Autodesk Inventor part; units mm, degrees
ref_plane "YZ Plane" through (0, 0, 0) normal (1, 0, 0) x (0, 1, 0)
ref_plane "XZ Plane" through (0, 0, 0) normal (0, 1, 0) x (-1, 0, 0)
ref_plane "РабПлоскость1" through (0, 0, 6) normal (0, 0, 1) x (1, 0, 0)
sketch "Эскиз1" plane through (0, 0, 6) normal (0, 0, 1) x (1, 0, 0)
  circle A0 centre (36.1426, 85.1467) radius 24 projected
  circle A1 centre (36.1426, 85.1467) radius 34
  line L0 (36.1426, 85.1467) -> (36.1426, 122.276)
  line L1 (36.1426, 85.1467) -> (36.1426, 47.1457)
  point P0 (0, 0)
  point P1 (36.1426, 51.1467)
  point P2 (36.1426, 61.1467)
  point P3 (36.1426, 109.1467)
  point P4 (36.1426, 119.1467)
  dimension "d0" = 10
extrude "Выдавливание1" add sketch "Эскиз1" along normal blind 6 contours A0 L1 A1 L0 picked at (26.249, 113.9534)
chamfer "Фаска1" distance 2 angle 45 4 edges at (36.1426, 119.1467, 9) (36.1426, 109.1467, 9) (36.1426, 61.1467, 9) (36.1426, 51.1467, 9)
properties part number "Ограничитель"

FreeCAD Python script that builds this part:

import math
import FreeCAD as App
import Part
import Sketcher

V = App.Vector
Q = App.Units.Quantity


def edges_at(feature, points):
    """Names of the edges that pass closest to the given points."""
    edges = feature.Shape.Edges
    near = lambda p: min(range(len(edges)), key=lambda i: edges[i].distToShape(Part.Vertex(*p))[0])
    return sorted({f"Edge{near(p) + 1}" for p in points})

doc = App.newDocument("Part")
body = doc.addObject("PartDesign::Body", "Body")

sketch1 = body.newObject("Sketcher::SketchObject", "Sketch")
sketch1.AttachmentSupport = (doc.getObject("XY_Plane"), [""])
sketch1.MapMode = "FlatFace"
sketch1.AttachmentOffset = App.Placement(V(0, 0, 6), App.Rotation())
sketch1.addGeometry([
    Part.ArcOfCircle(Part.Circle(V(36.1426, 85.1467, 0), V(0, 0, 1), 24), math.radians(90), math.radians(270)),
    Part.LineSegment(V(36.1426, 109.1467, 0), V(36.1426, 119.1467, 0)),
    Part.ArcOfCircle(Part.Circle(V(36.1426, 85.1467, 0), V(0, 0, 1), 34), math.radians(90), math.radians(270)),
    Part.LineSegment(V(36.1426, 51.1467, 0), V(36.1426, 61.1467, 0)),
], False)
sketch1.addConstraint([
    Sketcher.Constraint("Coincident", 0, 1, 1, 1),
    Sketcher.Constraint("Coincident", 1, 2, 2, 1),
    Sketcher.Constraint("Coincident", 2, 2, 3, 1),
    Sketcher.Constraint("Coincident", 3, 2, 0, 2),
    Sketcher.Constraint("Vertical", 1),
    Sketcher.Constraint("Vertical", 3),
    Sketcher.Constraint("Coincident", 2, 3, 0, 3),
    Sketcher.Constraint("Vertical", 2, 3, 0, 1),
    Sketcher.Constraint("Vertical", 1, 2, 2, 2),
    Sketcher.Constraint("DistanceY", 1, 1, 1, 2, Q("10 mm")),
    Sketcher.Constraint("Radius", 0, Q("24 mm")),
    Sketcher.Constraint("DistanceX", -1, 1, 0, 3, Q("36.1426 mm")),
    Sketcher.Constraint("DistanceY", -1, 1, 0, 3, Q("85.1467 mm")),
])
pad1 = body.newObject("PartDesign::Pad", "Pad")
pad1.Profile = sketch1
pad1.Length = 6
doc.recompute()

chamfer = body.newObject("PartDesign::Chamfer", "Chamfer")
chamfer.Base = (pad1, edges_at(pad1, [
    (36.143, 119.147, 9),
    (36.143, 109.147, 9),
    (36.143, 61.147, 9),
    (36.143, 51.147, 9),
]))
chamfer.Size = 2

doc.recompute()
